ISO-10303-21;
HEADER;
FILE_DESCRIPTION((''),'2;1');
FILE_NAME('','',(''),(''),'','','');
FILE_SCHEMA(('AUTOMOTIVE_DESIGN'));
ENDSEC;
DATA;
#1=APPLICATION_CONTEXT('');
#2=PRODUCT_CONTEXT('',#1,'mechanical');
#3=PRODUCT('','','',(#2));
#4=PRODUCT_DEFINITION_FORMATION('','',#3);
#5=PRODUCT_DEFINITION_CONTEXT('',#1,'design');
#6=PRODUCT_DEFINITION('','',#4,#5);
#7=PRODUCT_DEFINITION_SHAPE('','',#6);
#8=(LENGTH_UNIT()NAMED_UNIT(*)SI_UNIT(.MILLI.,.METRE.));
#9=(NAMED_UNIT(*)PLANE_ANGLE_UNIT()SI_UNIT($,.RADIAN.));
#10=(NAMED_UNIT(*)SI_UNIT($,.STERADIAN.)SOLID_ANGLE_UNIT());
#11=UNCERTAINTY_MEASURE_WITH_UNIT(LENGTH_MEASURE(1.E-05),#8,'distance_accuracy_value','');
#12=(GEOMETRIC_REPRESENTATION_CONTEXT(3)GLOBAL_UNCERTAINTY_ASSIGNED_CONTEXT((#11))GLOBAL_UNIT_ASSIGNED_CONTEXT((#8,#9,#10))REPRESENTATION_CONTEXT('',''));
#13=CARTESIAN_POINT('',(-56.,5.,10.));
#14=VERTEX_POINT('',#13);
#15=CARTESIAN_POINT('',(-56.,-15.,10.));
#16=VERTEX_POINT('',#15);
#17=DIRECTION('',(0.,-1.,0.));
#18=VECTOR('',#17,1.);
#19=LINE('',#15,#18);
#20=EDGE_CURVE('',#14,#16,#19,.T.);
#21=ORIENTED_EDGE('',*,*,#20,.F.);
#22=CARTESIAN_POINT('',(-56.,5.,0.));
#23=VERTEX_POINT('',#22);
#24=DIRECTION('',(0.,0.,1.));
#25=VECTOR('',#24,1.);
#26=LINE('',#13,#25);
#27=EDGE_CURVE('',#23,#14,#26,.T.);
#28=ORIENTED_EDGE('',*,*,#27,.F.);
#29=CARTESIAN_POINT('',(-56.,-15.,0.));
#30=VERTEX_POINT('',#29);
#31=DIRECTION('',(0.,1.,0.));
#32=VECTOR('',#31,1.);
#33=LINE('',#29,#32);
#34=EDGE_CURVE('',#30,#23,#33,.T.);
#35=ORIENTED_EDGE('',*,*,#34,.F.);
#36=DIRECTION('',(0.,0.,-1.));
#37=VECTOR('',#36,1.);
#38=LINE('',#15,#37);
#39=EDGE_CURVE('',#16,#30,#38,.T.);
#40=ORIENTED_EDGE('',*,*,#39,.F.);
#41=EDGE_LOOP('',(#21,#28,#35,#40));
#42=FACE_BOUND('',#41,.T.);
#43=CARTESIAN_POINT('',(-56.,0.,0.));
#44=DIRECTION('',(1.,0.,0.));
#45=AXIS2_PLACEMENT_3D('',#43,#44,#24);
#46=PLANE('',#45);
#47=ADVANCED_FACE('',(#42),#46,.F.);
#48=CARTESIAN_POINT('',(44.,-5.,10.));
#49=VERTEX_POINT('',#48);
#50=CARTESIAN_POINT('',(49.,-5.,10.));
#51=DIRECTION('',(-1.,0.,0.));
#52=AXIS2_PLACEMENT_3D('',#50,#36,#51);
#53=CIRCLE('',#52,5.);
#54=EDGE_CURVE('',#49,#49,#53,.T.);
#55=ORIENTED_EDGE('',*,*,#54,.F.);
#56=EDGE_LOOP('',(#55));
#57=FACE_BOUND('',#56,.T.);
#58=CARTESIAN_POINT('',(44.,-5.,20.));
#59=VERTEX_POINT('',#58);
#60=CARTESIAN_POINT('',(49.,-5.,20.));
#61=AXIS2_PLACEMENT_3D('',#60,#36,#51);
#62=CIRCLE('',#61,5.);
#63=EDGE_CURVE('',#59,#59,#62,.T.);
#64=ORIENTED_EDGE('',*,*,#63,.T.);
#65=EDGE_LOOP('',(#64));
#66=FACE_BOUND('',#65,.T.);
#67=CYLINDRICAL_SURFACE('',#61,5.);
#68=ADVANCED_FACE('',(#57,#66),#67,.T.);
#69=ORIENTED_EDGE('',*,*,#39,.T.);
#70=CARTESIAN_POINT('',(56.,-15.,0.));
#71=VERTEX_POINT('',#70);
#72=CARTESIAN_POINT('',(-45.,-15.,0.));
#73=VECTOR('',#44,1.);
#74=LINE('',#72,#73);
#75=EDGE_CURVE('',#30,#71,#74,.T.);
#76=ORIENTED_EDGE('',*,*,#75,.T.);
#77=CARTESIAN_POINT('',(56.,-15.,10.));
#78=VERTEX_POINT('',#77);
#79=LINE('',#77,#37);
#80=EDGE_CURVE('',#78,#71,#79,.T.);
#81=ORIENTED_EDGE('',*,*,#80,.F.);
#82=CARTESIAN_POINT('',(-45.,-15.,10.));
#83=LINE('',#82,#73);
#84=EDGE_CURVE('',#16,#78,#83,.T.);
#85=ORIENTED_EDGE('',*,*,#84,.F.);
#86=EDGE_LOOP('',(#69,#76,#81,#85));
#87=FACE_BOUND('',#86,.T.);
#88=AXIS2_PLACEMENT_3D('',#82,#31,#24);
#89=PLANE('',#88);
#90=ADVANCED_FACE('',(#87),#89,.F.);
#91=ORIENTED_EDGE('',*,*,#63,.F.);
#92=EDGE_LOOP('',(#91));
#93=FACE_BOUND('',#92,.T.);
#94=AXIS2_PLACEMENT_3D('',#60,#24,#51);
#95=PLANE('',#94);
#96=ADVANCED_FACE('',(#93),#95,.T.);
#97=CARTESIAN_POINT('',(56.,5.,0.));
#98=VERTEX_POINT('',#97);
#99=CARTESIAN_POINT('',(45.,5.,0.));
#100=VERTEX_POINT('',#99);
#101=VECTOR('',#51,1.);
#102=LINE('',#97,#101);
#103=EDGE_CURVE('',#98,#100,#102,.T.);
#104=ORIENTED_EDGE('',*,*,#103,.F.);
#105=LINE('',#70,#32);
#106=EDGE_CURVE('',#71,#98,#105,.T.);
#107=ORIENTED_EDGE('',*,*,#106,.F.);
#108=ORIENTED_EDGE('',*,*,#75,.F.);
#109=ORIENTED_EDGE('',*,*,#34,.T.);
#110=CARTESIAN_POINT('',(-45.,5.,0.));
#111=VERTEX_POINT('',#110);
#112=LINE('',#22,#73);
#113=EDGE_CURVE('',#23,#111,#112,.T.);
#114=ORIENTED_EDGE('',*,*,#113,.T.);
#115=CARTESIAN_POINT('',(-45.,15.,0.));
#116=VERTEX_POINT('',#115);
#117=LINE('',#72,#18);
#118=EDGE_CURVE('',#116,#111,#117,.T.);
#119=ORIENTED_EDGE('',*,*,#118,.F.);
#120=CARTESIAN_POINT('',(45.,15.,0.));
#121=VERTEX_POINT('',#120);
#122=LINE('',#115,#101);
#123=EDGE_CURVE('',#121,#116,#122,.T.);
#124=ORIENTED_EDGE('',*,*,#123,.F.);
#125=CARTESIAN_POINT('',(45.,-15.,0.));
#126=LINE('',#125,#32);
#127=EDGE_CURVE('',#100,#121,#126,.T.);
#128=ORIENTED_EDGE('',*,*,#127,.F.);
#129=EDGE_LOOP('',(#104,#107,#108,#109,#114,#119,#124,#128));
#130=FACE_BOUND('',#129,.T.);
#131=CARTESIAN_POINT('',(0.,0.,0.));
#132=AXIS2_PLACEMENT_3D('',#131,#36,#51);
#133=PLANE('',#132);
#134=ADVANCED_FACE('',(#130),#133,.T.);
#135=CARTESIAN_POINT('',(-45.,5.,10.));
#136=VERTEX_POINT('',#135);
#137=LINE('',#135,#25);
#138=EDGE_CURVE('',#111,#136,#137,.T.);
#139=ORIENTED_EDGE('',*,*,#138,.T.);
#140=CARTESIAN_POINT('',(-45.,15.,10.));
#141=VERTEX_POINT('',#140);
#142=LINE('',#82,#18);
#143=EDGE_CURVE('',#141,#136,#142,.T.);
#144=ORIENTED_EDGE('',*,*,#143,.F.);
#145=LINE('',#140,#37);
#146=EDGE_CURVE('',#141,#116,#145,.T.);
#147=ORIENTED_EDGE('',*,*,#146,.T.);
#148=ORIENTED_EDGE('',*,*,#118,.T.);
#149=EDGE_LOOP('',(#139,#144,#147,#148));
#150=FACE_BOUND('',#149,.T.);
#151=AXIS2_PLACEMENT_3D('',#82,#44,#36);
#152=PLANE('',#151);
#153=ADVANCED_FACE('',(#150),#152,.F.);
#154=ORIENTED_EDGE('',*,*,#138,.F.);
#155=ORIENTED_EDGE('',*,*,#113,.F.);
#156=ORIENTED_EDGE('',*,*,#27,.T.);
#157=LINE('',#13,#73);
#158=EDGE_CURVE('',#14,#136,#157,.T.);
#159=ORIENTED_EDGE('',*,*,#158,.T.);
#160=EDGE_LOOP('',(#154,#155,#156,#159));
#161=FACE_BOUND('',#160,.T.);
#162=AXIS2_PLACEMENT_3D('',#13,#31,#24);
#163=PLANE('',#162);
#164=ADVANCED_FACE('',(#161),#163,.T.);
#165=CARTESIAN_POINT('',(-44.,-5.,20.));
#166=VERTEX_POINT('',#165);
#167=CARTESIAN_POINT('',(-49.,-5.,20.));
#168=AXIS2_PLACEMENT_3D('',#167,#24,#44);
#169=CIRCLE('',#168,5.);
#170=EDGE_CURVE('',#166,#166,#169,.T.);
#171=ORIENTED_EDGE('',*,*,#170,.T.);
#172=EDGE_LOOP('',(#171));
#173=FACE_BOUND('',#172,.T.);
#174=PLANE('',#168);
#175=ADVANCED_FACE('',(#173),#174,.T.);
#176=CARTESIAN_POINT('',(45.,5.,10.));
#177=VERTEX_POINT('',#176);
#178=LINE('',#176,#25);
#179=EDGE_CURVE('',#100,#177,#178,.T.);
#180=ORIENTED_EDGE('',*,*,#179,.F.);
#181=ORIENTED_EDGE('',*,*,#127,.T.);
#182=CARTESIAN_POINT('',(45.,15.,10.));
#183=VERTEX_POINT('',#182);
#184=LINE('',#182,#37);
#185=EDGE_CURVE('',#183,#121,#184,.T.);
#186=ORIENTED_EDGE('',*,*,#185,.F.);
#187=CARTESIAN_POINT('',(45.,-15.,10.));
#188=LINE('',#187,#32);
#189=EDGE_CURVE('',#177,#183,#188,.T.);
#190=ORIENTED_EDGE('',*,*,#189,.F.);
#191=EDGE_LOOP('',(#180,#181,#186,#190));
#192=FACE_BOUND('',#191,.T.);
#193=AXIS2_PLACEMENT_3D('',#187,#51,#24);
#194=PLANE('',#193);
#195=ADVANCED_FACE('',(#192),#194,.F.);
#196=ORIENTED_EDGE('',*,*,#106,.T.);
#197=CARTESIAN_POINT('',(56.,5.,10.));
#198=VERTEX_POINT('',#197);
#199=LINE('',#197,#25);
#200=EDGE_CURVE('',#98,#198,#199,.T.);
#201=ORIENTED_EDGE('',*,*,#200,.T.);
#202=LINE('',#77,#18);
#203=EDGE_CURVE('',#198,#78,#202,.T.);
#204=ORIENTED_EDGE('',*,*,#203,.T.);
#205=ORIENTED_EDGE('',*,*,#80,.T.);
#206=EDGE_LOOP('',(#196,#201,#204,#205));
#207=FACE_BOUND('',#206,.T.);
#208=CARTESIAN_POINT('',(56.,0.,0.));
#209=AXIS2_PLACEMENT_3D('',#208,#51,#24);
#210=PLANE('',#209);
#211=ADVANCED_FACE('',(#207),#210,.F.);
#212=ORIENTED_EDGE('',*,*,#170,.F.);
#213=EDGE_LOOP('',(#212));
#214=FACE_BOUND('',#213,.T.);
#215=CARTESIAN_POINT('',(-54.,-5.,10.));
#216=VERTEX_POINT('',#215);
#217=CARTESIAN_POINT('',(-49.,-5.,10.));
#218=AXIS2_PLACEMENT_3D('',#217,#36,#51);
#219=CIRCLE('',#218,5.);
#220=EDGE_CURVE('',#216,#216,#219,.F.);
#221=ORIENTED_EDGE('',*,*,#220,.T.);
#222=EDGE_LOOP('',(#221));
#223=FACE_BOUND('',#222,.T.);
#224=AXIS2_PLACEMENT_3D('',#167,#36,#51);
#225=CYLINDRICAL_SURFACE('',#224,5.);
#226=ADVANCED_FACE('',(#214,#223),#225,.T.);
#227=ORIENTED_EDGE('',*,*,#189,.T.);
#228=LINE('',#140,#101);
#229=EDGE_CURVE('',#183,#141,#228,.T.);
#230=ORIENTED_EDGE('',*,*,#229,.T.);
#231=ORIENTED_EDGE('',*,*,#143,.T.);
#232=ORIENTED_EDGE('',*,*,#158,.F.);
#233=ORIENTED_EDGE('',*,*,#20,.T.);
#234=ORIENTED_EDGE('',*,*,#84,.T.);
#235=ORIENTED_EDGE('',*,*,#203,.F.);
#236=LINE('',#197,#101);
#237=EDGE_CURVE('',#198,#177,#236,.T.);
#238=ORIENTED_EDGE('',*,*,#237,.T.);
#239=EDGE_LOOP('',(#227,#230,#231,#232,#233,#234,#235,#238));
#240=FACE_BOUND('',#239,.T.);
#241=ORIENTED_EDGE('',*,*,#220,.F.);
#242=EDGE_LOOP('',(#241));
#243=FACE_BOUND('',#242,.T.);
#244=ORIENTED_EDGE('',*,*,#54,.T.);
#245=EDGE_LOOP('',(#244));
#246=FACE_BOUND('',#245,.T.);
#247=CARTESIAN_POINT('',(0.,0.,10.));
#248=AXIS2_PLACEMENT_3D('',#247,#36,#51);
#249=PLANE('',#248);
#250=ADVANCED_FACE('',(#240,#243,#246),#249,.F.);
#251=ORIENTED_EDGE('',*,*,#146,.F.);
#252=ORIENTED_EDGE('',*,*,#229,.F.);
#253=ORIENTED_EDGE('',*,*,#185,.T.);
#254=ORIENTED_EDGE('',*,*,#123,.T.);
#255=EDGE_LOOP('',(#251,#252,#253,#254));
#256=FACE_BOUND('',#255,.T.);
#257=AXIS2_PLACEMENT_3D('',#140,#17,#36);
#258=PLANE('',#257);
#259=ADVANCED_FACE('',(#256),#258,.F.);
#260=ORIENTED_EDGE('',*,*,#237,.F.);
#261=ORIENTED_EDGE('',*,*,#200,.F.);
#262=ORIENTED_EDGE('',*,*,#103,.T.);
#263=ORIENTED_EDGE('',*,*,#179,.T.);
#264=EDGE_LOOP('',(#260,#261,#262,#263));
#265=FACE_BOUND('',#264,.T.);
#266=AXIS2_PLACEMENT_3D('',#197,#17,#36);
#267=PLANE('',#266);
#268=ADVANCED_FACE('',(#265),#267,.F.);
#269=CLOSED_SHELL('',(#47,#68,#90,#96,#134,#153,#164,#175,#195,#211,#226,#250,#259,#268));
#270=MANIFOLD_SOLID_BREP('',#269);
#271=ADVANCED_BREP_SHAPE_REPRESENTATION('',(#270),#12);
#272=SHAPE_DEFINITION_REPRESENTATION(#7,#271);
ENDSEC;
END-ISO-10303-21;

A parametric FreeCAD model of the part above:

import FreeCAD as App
import Part
import Sketcher
Q = App.Units.Quantity

doc = App.newDocument("Part")
body = doc.addObject("PartDesign::Body", "Body")

sketch1 = doc.addObject("Sketcher::SketchObject", "Sketch")
body.addObject(sketch1)
sketch1.AttachmentSupport = (doc.XY_Plane, [""])
sketch1.MapMode = "FlatFace"
sketch1.addGeometry([
    Part.LineSegment(App.Vector(-45, 15, 0), App.Vector(-45, -15, 0)),
    Part.LineSegment(App.Vector(-45, -15, 0), App.Vector(45, -15, 0)),
    Part.LineSegment(App.Vector(45, -15, 0), App.Vector(45, 15, 0)),
    Part.LineSegment(App.Vector(45, 15, 0), App.Vector(-45, 15, 0)),
], False)
sketch1.addConstraint([
    Sketcher.Constraint("Coincident", 0, 2, 1, 1),
    Sketcher.Constraint("Coincident", 1, 2, 2, 1),
    Sketcher.Constraint("Coincident", 2, 2, 3, 1),
    Sketcher.Constraint("Coincident", 3, 2, 0, 1),
    Sketcher.Constraint("Vertical", 0),
    Sketcher.Constraint("Horizontal", 1),
    Sketcher.Constraint("Vertical", 2),
    Sketcher.Constraint("Horizontal", 3),
    Sketcher.Constraint("Symmetric", 0, 2, 2, 2, -1, 1),
    Sketcher.Constraint("DistanceX", 1, 1, 1, 2, Q("90 mm")),
    Sketcher.Constraint("DistanceY", 0, 2, 0, 1, Q("30 mm")),
])
pad1 = doc.addObject("PartDesign::Pad", "Pad")
body.addObject(pad1)
pad1.Profile = sketch1
pad1.Length = 10

sketch2 = doc.addObject("Sketcher::SketchObject", "Sketch001")
body.addObject(sketch2)
sketch2.AttachmentSupport = (doc.YZ_Plane, [""])
sketch2.MapMode = "FlatFace"
sketch2.AttachmentOffset = App.Placement(App.Vector(0, 0, 45), App.Rotation())
sketch2.addGeometry([
    Part.LineSegment(App.Vector(5, 10, 0), App.Vector(-15, 10, 0)),
    Part.LineSegment(App.Vector(-15, 10, 0), App.Vector(-15, 0, 0)),
    Part.LineSegment(App.Vector(-15, 0, 0), App.Vector(5, 0, 0)),
    Part.LineSegment(App.Vector(5, 0, 0), App.Vector(5, 10, 0)),
], False)
sketch2.addConstraint([
    Sketcher.Constraint("Coincident", 0, 2, 1, 1),
    Sketcher.Constraint("Coincident", 1, 2, 2, 1),
    Sketcher.Constraint("Coincident", 2, 2, 3, 1),
    Sketcher.Constraint("Coincident", 3, 2, 0, 1),
    Sketcher.Constraint("Horizontal", 0),
    Sketcher.Constraint("Vertical", 1),
    Sketcher.Constraint("Horizontal", 2),
    Sketcher.Constraint("Vertical", 3),
    Sketcher.Constraint("PointOnObject", 1, 2, -1),
    Sketcher.Constraint("DistanceX", 0, 2, 0, 1, Q("20 mm")),
    Sketcher.Constraint("DistanceY", 1, 2, 1, 1, Q("10 mm")),
    Sketcher.Constraint("DistanceX", 0, 2, -1, 1, Q("15 mm")),
])
pad2 = doc.addObject("PartDesign::Pad", "Pad001")
body.addObject(pad2)
pad2.Profile = sketch2
pad2.Length = 11
doc.recompute()

mirrored = doc.addObject("PartDesign::Mirrored", "Mirrored")
body.addObject(mirrored)
mirrored.Originals = [pad2]
mirrored.MirrorPlane = (doc.YZ_Plane, [""])
body.Tip = mirrored

sketch3 = doc.addObject("Sketcher::SketchObject", "Sketch002")
body.addObject(sketch3)
sketch3.AttachmentSupport = (doc.XY_Plane, [""])
sketch3.MapMode = "FlatFace"
sketch3.AttachmentOffset = App.Placement(App.Vector(0, 0, 10), App.Rotation())
sketch3.addGeometry(Part.Circle(App.Vector(-49, -5, 0), App.Vector(0, 0, 1), 5), False)
sketch3.addConstraint([
    Sketcher.Constraint("Diameter", 0, Q("10 mm")),
    Sketcher.Constraint("DistanceX", 0, 3, -1, 1, Q("49 mm")),
    Sketcher.Constraint("DistanceY", 0, 3, -1, 1, Q("5 mm")),
])
pad3 = doc.addObject("PartDesign::Pad", "Pad002")
body.addObject(pad3)
pad3.Profile = sketch3
pad3.Length = 10
doc.recompute()

mirrored2 = doc.addObject("PartDesign::Mirrored", "Mirrored001")
body.addObject(mirrored2)
mirrored2.Originals = [pad3]
mirrored2.MirrorPlane = (doc.YZ_Plane, [""])
body.Tip = mirrored2

doc.recompute()
